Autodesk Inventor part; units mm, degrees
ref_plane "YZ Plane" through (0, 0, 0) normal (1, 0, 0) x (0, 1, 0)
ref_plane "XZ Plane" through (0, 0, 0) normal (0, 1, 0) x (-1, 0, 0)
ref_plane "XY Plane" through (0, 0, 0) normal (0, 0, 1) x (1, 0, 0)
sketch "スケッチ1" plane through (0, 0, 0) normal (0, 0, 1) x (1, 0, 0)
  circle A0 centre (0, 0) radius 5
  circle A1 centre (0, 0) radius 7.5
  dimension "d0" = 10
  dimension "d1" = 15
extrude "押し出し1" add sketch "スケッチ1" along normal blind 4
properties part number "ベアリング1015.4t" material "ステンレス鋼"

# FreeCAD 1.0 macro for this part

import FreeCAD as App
import Part
import Sketcher
from FreeCAD import Vector
Q = App.Units.Quantity

doc = App.newDocument("Part")
params = doc.addObject("Spreadsheet::Sheet", "Params")
for row, (alias, value) in enumerate([
    ("sketch1_diameter", "15 mm"),
    ("sketch1_diameter2", "10 mm"),
    ("pad1_length", "4 mm"),
], start=1):
    params.set(f"A{row}", alias)
    params.set(f"B{row}", "=" + value)
    params.setAlias(f"B{row}", alias)

body = doc.addObject("PartDesign::Body", "Body")

# Sketch on XY plane
sketch1 = body.newObject("Sketcher::SketchObject", "Sketch")
sketch1.AttachmentSupport = (doc.getObject("XY_Plane"), [""])
sketch1.MapMode = "FlatFace"
sketch1.addGeometry(Part.Circle(Vector(0, 0, 0), Vector(0, 0, 1), 8), False)
sketch1.addGeometry(Part.Circle(Vector(0, 0, 0), Vector(0, 0, 1), 5), False)
sketch1.addConstraint(Sketcher.Constraint("Coincident", 0, 3, -1, 1))
sketch1.addConstraint(Sketcher.Constraint("Coincident", 1, 3, -1, 1))
sketch1.addConstraint(Sketcher.Constraint("Diameter", 0, Q("15 mm")))
sketch1.addConstraint(Sketcher.Constraint("Diameter", 1, Q("10 mm")))
sketch1.setExpression("Constraints[2]", "Params.sketch1_diameter")
sketch1.setExpression("Constraints[3]", "Params.sketch1_diameter2")
pad1 = body.newObject("PartDesign::Pad", "Pad")
pad1.Profile = sketch1
pad1.setExpression("Length", "Params.pad1_length")

doc.recompute()
